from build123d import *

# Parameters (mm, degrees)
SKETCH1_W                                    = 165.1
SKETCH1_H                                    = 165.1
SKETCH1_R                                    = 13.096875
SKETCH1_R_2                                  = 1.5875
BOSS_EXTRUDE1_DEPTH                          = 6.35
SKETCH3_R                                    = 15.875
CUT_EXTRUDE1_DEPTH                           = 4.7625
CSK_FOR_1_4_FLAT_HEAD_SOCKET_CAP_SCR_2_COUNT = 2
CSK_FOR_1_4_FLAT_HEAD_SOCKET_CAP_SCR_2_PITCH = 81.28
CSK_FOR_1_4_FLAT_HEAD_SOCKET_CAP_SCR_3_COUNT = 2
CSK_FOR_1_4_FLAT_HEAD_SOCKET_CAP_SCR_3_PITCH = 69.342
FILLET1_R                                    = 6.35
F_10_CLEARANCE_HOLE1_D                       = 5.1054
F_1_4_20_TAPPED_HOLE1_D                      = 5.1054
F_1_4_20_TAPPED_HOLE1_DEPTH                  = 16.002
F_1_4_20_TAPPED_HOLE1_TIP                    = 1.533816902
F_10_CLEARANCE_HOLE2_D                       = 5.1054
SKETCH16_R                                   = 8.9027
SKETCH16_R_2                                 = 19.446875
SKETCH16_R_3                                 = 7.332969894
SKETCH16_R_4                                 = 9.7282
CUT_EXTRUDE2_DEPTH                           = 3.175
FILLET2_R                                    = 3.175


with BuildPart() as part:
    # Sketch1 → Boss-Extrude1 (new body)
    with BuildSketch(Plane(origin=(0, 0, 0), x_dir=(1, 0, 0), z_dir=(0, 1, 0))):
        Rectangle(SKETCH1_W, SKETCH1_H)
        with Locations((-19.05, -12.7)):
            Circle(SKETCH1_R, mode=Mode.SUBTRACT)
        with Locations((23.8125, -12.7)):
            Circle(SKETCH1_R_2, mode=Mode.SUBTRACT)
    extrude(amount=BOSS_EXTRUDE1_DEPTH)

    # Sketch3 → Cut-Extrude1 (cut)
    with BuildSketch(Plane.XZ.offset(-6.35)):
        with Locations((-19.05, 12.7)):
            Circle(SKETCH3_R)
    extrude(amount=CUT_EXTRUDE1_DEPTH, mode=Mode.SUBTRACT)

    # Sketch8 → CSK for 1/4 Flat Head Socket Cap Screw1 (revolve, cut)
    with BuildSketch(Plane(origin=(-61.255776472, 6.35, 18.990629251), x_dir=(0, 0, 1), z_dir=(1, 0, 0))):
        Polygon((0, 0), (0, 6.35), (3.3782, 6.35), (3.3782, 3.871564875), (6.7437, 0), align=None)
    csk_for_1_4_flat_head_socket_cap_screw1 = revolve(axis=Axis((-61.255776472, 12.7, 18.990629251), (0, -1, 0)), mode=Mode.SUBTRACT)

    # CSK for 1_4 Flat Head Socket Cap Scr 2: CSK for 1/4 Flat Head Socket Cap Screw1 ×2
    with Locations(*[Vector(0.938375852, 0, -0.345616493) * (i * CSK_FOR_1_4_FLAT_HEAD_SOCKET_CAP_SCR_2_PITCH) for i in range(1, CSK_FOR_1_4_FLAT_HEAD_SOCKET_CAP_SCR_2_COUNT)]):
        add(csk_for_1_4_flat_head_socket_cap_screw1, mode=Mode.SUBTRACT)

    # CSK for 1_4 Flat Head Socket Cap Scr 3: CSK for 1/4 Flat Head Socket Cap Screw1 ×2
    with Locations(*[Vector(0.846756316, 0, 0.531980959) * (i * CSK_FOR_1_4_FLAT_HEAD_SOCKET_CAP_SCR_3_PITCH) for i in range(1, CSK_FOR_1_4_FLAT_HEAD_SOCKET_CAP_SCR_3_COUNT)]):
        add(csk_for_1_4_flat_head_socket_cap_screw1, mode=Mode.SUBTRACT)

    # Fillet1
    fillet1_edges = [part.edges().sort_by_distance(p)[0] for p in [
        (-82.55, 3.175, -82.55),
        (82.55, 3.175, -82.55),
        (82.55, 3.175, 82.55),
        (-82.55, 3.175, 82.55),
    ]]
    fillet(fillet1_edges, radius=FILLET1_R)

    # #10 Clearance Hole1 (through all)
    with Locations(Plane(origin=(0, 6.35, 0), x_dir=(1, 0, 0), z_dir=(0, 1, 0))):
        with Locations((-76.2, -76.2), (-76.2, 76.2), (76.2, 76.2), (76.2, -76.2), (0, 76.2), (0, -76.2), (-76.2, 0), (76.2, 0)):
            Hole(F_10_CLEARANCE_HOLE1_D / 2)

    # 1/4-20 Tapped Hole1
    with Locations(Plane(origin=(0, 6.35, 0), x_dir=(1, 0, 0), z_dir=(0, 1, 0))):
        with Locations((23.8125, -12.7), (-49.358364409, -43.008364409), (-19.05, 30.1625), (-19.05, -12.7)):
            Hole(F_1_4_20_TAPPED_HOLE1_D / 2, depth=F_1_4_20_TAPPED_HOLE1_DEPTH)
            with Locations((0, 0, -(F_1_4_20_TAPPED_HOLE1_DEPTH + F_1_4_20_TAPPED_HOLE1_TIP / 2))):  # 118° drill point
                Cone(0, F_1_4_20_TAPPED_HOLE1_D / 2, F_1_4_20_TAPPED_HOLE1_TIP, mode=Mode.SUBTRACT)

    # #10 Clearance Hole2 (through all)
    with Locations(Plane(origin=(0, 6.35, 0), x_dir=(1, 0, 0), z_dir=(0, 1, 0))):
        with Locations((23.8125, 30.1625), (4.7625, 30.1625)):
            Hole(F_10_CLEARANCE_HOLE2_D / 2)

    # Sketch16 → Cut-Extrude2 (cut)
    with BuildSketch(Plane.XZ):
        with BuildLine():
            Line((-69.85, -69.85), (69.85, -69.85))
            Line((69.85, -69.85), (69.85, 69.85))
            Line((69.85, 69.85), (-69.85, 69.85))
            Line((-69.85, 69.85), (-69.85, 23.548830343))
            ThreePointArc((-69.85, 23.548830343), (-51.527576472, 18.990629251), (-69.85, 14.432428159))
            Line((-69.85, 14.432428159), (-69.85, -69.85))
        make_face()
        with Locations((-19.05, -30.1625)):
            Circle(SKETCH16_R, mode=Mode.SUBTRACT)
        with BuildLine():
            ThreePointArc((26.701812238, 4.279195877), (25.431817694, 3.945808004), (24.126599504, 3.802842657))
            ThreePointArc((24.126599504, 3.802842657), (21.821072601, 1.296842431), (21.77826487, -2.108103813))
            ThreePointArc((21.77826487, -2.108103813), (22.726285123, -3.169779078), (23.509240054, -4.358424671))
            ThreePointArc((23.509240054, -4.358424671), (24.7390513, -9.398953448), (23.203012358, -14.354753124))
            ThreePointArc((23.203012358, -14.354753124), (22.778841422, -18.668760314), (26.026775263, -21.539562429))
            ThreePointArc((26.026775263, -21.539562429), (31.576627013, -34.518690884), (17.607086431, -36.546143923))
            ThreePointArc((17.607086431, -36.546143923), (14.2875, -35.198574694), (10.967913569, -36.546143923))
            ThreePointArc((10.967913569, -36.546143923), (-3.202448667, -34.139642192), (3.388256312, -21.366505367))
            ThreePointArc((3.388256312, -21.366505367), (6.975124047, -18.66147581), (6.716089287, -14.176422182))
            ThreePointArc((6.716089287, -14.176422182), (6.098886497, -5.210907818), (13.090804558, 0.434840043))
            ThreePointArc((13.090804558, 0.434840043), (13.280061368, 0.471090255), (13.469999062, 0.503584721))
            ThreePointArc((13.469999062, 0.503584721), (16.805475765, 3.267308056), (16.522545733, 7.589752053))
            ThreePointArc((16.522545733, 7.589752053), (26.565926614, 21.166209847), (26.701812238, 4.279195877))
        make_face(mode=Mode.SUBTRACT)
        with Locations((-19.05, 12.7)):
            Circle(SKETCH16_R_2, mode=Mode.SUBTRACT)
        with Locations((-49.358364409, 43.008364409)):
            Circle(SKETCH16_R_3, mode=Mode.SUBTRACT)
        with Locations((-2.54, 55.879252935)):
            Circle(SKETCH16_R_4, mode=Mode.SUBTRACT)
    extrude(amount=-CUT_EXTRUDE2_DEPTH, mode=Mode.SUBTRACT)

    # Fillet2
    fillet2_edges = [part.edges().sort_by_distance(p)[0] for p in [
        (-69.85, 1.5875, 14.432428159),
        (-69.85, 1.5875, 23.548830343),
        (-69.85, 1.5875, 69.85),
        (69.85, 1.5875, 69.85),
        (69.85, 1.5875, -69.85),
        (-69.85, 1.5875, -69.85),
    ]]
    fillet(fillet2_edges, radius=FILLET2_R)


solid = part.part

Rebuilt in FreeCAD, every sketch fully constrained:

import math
import FreeCAD as App
import Part
import Sketcher

V = App.Vector
Q = App.Units.Quantity


def edges_at(feature, points):
    """Names of the edges that pass closest to the given points."""
    edges = feature.Shape.Edges
    near = lambda p: min(range(len(edges)), key=lambda i: edges[i].distToShape(Part.Vertex(*p))[0])
    return sorted({f"Edge{near(p) + 1}" for p in points})

doc = App.newDocument("Part")
body = doc.addObject("PartDesign::Body", "Body")

sketch1 = body.newObject("Sketcher::SketchObject", "Sketch")
sketch1.AttachmentSupport = (doc.getObject("XZ_Plane"), [""])
sketch1.MapMode = "FlatFace"
sketch1.addGeometry(Part.LineSegment(V(-82.5, -82.5, 0), V(-82.5, 82.5, 0)), False)
sketch1.addGeometry(Part.LineSegment(V(-82.5, 82.5, 0), V(82.5, 82.5, 0)), False)
sketch1.addGeometry(Part.LineSegment(V(82.5, 82.5, 0), V(82.5, -82.5, 0)), False)
sketch1.addGeometry(Part.LineSegment(V(82.5, -82.5, 0), V(-82.5, -82.5, 0)), False)
sketch1.addGeometry(Part.Circle(V(-19.1, 12.7, 0), V(0, 0, 1), 13.1), False)
sketch1.addGeometry(Part.Circle(V(23.8, 12.7, 0), V(0, 0, 1), 1.6), False)
sketch1.addConstraint(Sketcher.Constraint("Coincident", 0, 2, 1, 1))
sketch1.addConstraint(Sketcher.Constraint("Coincident", 1, 2, 2, 1))
sketch1.addConstraint(Sketcher.Constraint("Coincident", 2, 2, 3, 1))
sketch1.addConstraint(Sketcher.Constraint("Coincident", 3, 2, 0, 1))
sketch1.addConstraint(Sketcher.Constraint("Vertical", 0))
sketch1.addConstraint(Sketcher.Constraint("Horizontal", 1))
sketch1.addConstraint(Sketcher.Constraint("Vertical", 2))
sketch1.addConstraint(Sketcher.Constraint("Horizontal", 3))
sketch1.addConstraint(Sketcher.Constraint("Symmetric", 0, 2, 2, 2, -1, 1))
sketch1.addConstraint(Sketcher.Constraint("Horizontal", 4, 3, 5, 3))
sketch1.addConstraint(Sketcher.Constraint("Equal", 3, 0))
sketch1.addConstraint(Sketcher.Constraint("Diameter", 4, Q("1.03125 in")))
sketch1.addConstraint(Sketcher.Constraint("Diameter", 5, Q("0.125 in")))
sketch1.addConstraint(Sketcher.Constraint("DistanceX", 1, 1, 1, 2, Q("6.5 in")))
sketch1.addConstraint(Sketcher.Constraint("DistanceX", 4, 3, 1, 2, Q("4 in")))
sketch1.addConstraint(Sketcher.Constraint("DistanceY", -1, 1, 4, 3, Q("0.5 in")))
sketch1.addConstraint(Sketcher.Constraint("DistanceX", -1, 1, 5, 3, Q("0.9375 in")))
pad1 = body.newObject("PartDesign::Pad", "Pad")
pad1.Profile = sketch1
pad1.Length = Q("0.25 in")
pad1.Reversed = True

sketch2 = body.newObject("Sketcher::SketchObject", "Sketch001")
sketch2.AttachmentSupport = (doc.getObject("XZ_Plane"), [""])
sketch2.MapMode = "FlatFace"
sketch2.AttachmentOffset = App.Placement(V(0, 0, -0.25 * 25.4), App.Rotation())
sketch2.addGeometry(Part.Circle(V(-19, 13, 0), V(0, 0, 1), 16), False)
sketch2.addConstraint(Sketcher.Constraint("Diameter", 0, Q("1.25 in")))
sketch2.addConstraint(Sketcher.Constraint("DistanceY", -1, 1, 0, 3, Q("0.5 in")))
sketch2.addConstraint(Sketcher.Constraint("DistanceX", 0, 3, -1, 1, Q("0.75 in")))
pocket1 = body.newObject("PartDesign::Pocket", "Pocket")
pocket1.Profile = sketch2
pocket1.Length = Q("0.1875 in")
pocket1.Reversed = True

sketch3 = body.newObject("Sketcher::SketchObject", "Sketch002")
sketch3.AttachmentSupport = (doc.getObject("YZ_Plane"), [""])
sketch3.MapMode = "FlatFace"
sketch3.AttachmentOffset = App.Placement(V(0, 0, -61.255776), App.Rotation())
sketch3.addGeometry(Part.LineSegment(V(0, 19, 0), V(6.3, 19, 0)), False)
sketch3.addGeometry(Part.LineSegment(V(6.3, 19, 0), V(6.3, 25.7, 0)), False)
sketch3.addGeometry(Part.LineSegment(V(6.3, 25.7, 0), V(2.5, 22.4, 0)), False)
sketch3.addGeometry(Part.LineSegment(V(2.5, 22.4, 0), V(0, 22.4, 0)), False)
sketch3.addGeometry(Part.LineSegment(V(0, 22.4, 0), V(0, 19, 0)), False)
sketch3.addGeometry(Part.LineSegment(V(6.3, 19, 0), V(0, 19, 0)), True)
sketch3.addConstraint(Sketcher.Constraint("Coincident", 0, 2, 1, 1))
sketch3.addConstraint(Sketcher.Constraint("Coincident", 1, 2, 2, 1))
sketch3.addConstraint(Sketcher.Constraint("Coincident", 2, 2, 3, 1))
sketch3.addConstraint(Sketcher.Constraint("Coincident", 3, 2, 4, 1))
sketch3.addConstraint(Sketcher.Constraint("Coincident", 4, 2, 0, 1))
sketch3.addConstraint(Sketcher.Constraint("Horizontal", 0))
sketch3.addConstraint(Sketcher.Constraint("Vertical", 1))
sketch3.addConstraint(Sketcher.Constraint("Horizontal", 3))
sketch3.addConstraint(Sketcher.Constraint("Vertical", 4))
sketch3.addConstraint(Sketcher.Constraint("Horizontal", 5))
sketch3.addConstraint(Sketcher.Constraint("Coincident", 5, 1, 0, 2))
sketch3.addConstraint(Sketcher.Constraint("PointOnObject", 3, 2, -2))
sketch3.addConstraint(Sketcher.Constraint("PointOnObject", 5, 2, -2))
sketch3.addConstraint(Sketcher.Constraint("Angle", 2, Q("-139 deg")))
sketch3.addConstraint(Sketcher.Constraint("DistanceX", 0, 1, 0, 2, Q("0.25 in")))
sketch3.addConstraint(Sketcher.Constraint("DistanceY", 4, 2, 4, 1, Q("0.133 in")))
sketch3.addConstraint(Sketcher.Constraint("DistanceY", 1, 1, 1, 2, Q("0.2655 in")))
sketch3.addConstraint(Sketcher.Constraint("DistanceY", -1, 1, 0, 2, 18.990629))
groove = body.newObject("PartDesign::Groove", "Groove")
groove.Profile = sketch3
groove.ReferenceAxis = (sketch3, ["Axis0"])
groove.Angle = 360
doc.recompute()

datumline = body.newObject("PartDesign::Line", "DatumLine")
datumline.Placement = App.Placement(V(0, 0, 0), App.Rotation(V(0, 0, 1), V(0.938375852, 0, -0.345616493)))
linearpattern = body.newObject("PartDesign::LinearPattern", "LinearPattern")
linearpattern.Originals = [groove]
linearpattern.Direction = (datumline, [""])
linearpattern.Mode = "offset"
linearpattern.Offset = Q("3.2 in")
linearpattern.Occurrences = 2
body.Tip = linearpattern
doc.recompute()

datumline2 = body.newObject("PartDesign::Line", "DatumLine001")
datumline2.Placement = App.Placement(V(0, 0, 0), App.Rotation(V(0, 0, 1), V(0.846756316, 0, 0.531980959)))
linearpattern2 = body.newObject("PartDesign::LinearPattern", "LinearPattern001")
linearpattern2.Originals = [groove]
linearpattern2.Direction = (datumline2, [""])
linearpattern2.Mode = "offset"
linearpattern2.Offset = Q("2.73 in")
linearpattern2.Occurrences = 2
body.Tip = linearpattern2
doc.recompute()

fillet = body.newObject("PartDesign::Fillet", "Fillet")
fillet.Base = (linearpattern2, edges_at(linearpattern2, [
    (-82.55, 3.175, -82.55),
    (82.55, 3.175, -82.55),
    (82.55, 3.175, 82.55),
    (-82.55, 3.175, 82.55),
]))
fillet.Radius = Q("0.25 in")

sketch4 = body.newObject("Sketcher::SketchObject", "Sketch003")
sketch4.AttachmentSupport = (doc.getObject("XZ_Plane"), [""])
sketch4.MapMode = "FlatFace"
sketch4.AttachmentOffset = App.Placement(V(0, 0, -0.25 * 25.4), App.Rotation())
sketch4.addGeometry(Part.Circle(V(-76.2, 76.2, 0), V(0, 0, 1), 2.6), False)
sketch4.addGeometry(Part.Circle(V(-76.2, -76.2, 0), V(0, 0, 1), 2.6), False)
sketch4.addGeometry(Part.Circle(V(76.2, -76.2, 0), V(0, 0, 1), 2.6), False)
sketch4.addGeometry(Part.Circle(V(76.2, 76.2, 0), V(0, 0, 1), 2.6), False)
sketch4.addGeometry(Part.Circle(V(0, -76.2, 0), V(0, 0, 1), 2.6), False)
sketch4.addGeometry(Part.Circle(V(0, 76.2, 0), V(0, 0, 1), 2.6), False)
sketch4.addGeometry(Part.Circle(V(-76.2, 0, 0), V(0, 0, 1), 2.6), False)
sketch4.addGeometry(Part.Circle(V(76.2, 0, 0), V(0, 0, 1), 2.6), False)
sketch4.addConstraint(Sketcher.Constraint("Equal", 0, 1))
sketch4.addConstraint(Sketcher.Constraint("Equal", 1, 2))
sketch4.addConstraint(Sketcher.Constraint("Equal", 2, 3))
sketch4.addConstraint(Sketcher.Constraint("Equal", 3, 4))
sketch4.addConstraint(Sketcher.Constraint("Equal", 4, 5))
sketch4.addConstraint(Sketcher.Constraint("Equal", 5, 6))
sketch4.addConstraint(Sketcher.Constraint("Equal", 6, 7))
sketch4.addConstraint(Sketcher.Constraint("Symmetric", 0, 3, 2, 3, -1, 1))
sketch4.addConstraint(Sketcher.Constraint("Symmetric", 1, 3, 3, 3, -1, 1))
sketch4.addConstraint(Sketcher.Constraint("Symmetric", 4, 3, 5, 3, -1, 1))
sketch4.addConstraint(Sketcher.Constraint("Symmetric", 6, 3, 7, 3, -1, 1))
sketch4.addConstraint(Sketcher.Constraint("Symmetric", 1, 3, 2, 3, -2))
sketch4.addConstraint(Sketcher.Constraint("PointOnObject", 4, 3, -2))
sketch4.addConstraint(Sketcher.Constraint("PointOnObject", 6, 3, -1))
sketch4.addConstraint(Sketcher.Constraint("Horizontal", 2, 3, 4, 3))
sketch4.addConstraint(Sketcher.Constraint("Vertical", 1, 3, 6, 3))
sketch4.addConstraint(Sketcher.Constraint("Diameter", 0, Q("0.201 in")))
sketch4.addConstraint(Sketcher.Constraint("DistanceX", 0, 3, -1, 1, Q("3 in")))
sketch4.addConstraint(Sketcher.Constraint("DistanceY", -1, 1, 0, 3, Q("3 in")))
doc.recompute()
hole = body.newObject("PartDesign::Hole", "Hole")
hole.Profile = sketch4
hole.ThreadType = "None"
hole.Diameter = Q("0.201 in")
hole.DepthType = "ThroughAll"
hole.Reversed = True

sketch5 = body.newObject("Sketcher::SketchObject", "Sketch004")
sketch5.AttachmentSupport = (doc.getObject("XZ_Plane"), [""])
sketch5.MapMode = "FlatFace"
sketch5.AttachmentOffset = App.Placement(V(0, 0, -0.25 * 25.4), App.Rotation())
sketch5.addGeometry(Part.Circle(V(23.8, 12.7, 0), V(0, 0, 1), 2.6), False)
sketch5.addGeometry(Part.Circle(V(-49.4, 43, 0), V(0, 0, 1), 2.6), False)
sketch5.addGeometry(Part.Circle(V(-19.1, -30.2, 0), V(0, 0, 1), 2.6), False)
sketch5.addGeometry(Part.Circle(V(-19.1, 12.7, 0), V(0, 0, 1), 2.6), False)
sketch5.addConstraint(Sketcher.Constraint("Equal", 0, 1))
sketch5.addConstraint(Sketcher.Constraint("Equal", 1, 2))
sketch5.addConstraint(Sketcher.Constraint("Equal", 2, 3))
sketch5.addConstraint(Sketcher.Constraint("Horizontal", 0, 3, 3, 3))
sketch5.addConstraint(Sketcher.Constraint("Vertical", 2, 3, 3, 3))
sketch5.addConstraint(Sketcher.Constraint("Diameter", 0, Q("0.201 in")))
sketch5.addConstraint(Sketcher.Constraint("DistanceY", -1, 1, 0, 3, Q("0.5 in")))
sketch5.addConstraint(Sketcher.Constraint("DistanceX", 2, 3, -1, 1, Q("0.75 in")))
sketch5.addConstraint(Sketcher.Constraint("DistanceX", -1, 1, 0, 3, Q("0.9375 in")))
sketch5.addConstraint(Sketcher.Constraint("DistanceY", 2, 3, -1, 1, Q("1.1875 in")))
sketch5.addConstraint(Sketcher.Constraint("DistanceX", 1, 3, -1, 1, 49.358364))
sketch5.addConstraint(Sketcher.Constraint("DistanceY", -1, 1, 1, 3, 43.008364))
doc.recompute()
hole2 = body.newObject("PartDesign::Hole", "Hole001")
hole2.Profile = sketch5
hole2.ThreadType = "None"
hole2.Diameter = Q("0.201 in")
hole2.DepthType = "Dimension"
hole2.Depth = Q("0.63 in")
hole2.DrillPoint = "Angled"
hole2.DrillPointAngle = 118
hole2.Reversed = True

sketch6 = body.newObject("Sketcher::SketchObject", "Sketch005")
sketch6.AttachmentSupport = (doc.getObject("XZ_Plane"), [""])
sketch6.MapMode = "FlatFace"
sketch6.AttachmentOffset = App.Placement(V(0, 0, -0.25 * 25.4), App.Rotation())
sketch6.addGeometry(Part.Circle(V(23.8, -30.2, 0), V(0, 0, 1), 2.6), False)
sketch6.addGeometry(Part.Circle(V(4.8, -30.2, 0), V(0, 0, 1), 2.6), False)
sketch6.addConstraint(Sketcher.Constraint("Equal", 0, 1))
sketch6.addConstraint(Sketcher.Constraint("Horizontal", 0, 3, 1, 3))
sketch6.addConstraint(Sketcher.Constraint("Diameter", 0, Q("0.201 in")))
sketch6.addConstraint(Sketcher.Constraint("DistanceX", 1, 3, 0, 3, Q("0.75 in")))
sketch6.addConstraint(Sketcher.Constraint("DistanceX", -1, 1, 0, 3, Q("0.9375 in")))
sketch6.addConstraint(Sketcher.Constraint("DistanceY", 0, 3, -1, 1, Q("1.1875 in")))
doc.recompute()
hole3 = body.newObject("PartDesign::Hole", "Hole002")
hole3.Profile = sketch6
hole3.ThreadType = "None"
hole3.Diameter = Q("0.201 in")
hole3.DepthType = "ThroughAll"
hole3.Reversed = True

sketch7 = body.newObject("Sketcher::SketchObject", "Sketch006")
sketch7.AttachmentSupport = (doc.getObject("XZ_Plane"), [""])
sketch7.MapMode = "FlatFace"
sketch7.addGeometry(Part.LineSegment(V(-69.85, -69.85, 0), V(69.85, -69.85, 0)), False)
sketch7.addGeometry(Part.LineSegment(V(69.85, -69.85, 0), V(69.85, 69.85, 0)), False)
sketch7.addGeometry(Part.LineSegment(V(69.85, 69.85, 0), V(-69.85, 69.85, 0)), False)
sketch7.addGeometry(Part.LineSegment(V(-69.85, 69.85, 0), V(-69.85, 23.55, 0)), False)
sketch7.addGeometry(Part.ArcOfCircle(Part.Circle(V(-61.26, 18.99, 0), V(0, 0, 1), 9.73), math.radians(-152), math.radians(152)), False)
sketch7.addGeometry(Part.LineSegment(V(-69.85, 14.43, 0), V(-69.85, -69.85, 0)), False)
sketch7.addGeometry(Part.Circle(V(-19.05, -30.16, 0), V(0, 0, 1), 8.9), False)
sketch7.addGeometry(Part.Circle(V(-19.05, 12.7, 0), V(0, 0, 1), 19.45), False)
sketch7.addGeometry(Part.ArcOfCircle(Part.Circle(V(23.81, 12.7, 0), V(0, 0, 1), 8.9), math.radians(-71), math.radians(215)), False)
sketch7.addGeometry(Part.ArcOfCircle(Part.Circle(V(23.81, 12.7, 0), V(0, 0, 1), 8.9), math.radians(-87.98), math.radians(-71.06)), False)
sketch7.addGeometry(Part.ArcOfCircle(Part.Circle(V(26.25, -0.46, 0), V(0, 0, 1), 4.76), math.radians(116), math.radians(200)), False)
sketch7.addGeometry(Part.ArcOfCircle(Part.Circle(V(15.02, -9.1, 0), V(0, 0, 1), 9.73), math.radians(29.18), math.radians(45.96)), False)
sketch7.addGeometry(Part.ArcOfCircle(Part.Circle(V(15.02, -9.1, 0), V(0, 0, 1), 9.73), math.radians(-33), math.radians(29)), False)
sketch7.addGeometry(Part.ArcOfCircle(Part.Circle(V(27.21, -16.93, 0), V(0, 0, 1), 4.76), math.radians(147), math.radians(256)), False)
sketch7.addGeometry(Part.ArcOfCircle(Part.Circle(V(23.81, -30.16, 0), V(0, 0, 1), 8.9), math.radians(-134), math.radians(76)), False)
sketch7.addGeometry(Part.ArcOfCircle(Part.Circle(V(14.29, -39.96, 0), V(0, 0, 1), 4.76), math.radians(46), math.radians(134)), False)
sketch7.addGeometry(Part.ArcOfCircle(Part.Circle(V(4.76, -30.16, 0), V(0, 0, 1), 8.9), math.radians(99), math.radians(314)), False)
sketch7.addGeometry(Part.ArcOfCircle(Part.Circle(V(2.65, -16.66, 0), V(0, 0, 1), 4.76), math.radians(-81), math.radians(31)), False)
sketch7.addGeometry(Part.ArcOfCircle(Part.Circle(V(15.02, -9.1, 0), V(0, 0, 1), 9.73), math.radians(101), math.radians(211)), False)
sketch7.addGeometry(Part.ArcOfCircle(Part.Circle(V(15.02, -9.1, 0), V(0, 0, 1), 9.73), math.radians(99.14), math.radians(101.41)), False)
sketch7.addGeometry(Part.ArcOfCircle(Part.Circle(V(12.43, 5.15, 0), V(0, 0, 1), 4.76), math.radians(-77), math.radians(31)), False)
sketch7.addGeometry(Part.Circle(V(-49.36, 43.01, 0), V(0, 0, 1), 7.33), False)
sketch7.addGeometry(Part.Circle(V(-2.54, 55.88, 0), V(0, 0, 1), 9.73), False)
sketch7.addConstraint(Sketcher.Constraint("Coincident", 0, 2, 1, 1))
sketch7.addConstraint(Sketcher.Constraint("Coincident", 1, 2, 2, 1))
sketch7.addConstraint(Sketcher.Constraint("Coincident", 2, 2, 3, 1))
sketch7.addConstraint(Sketcher.Constraint("Coincident", 3, 2, 4, 2))
sketch7.addConstraint(Sketcher.Constraint("Coincident", 4, 1, 5, 1))
sketch7.addConstraint(Sketcher.Constraint("Coincident", 5, 2, 0, 1))
sketch7.addConstraint(Sketcher.Constraint("Tangent", 8, 1, 9, 2))
sketch7.addConstraint(Sketcher.Constraint("Coincident", 9, 1, 10, 1))
sketch7.addConstraint(Sketcher.Constraint("Coincident", 10, 2, 11, 2))
sketch7.addConstraint(Sketcher.Constraint("Tangent", 11, 1, 12, 2))
sketch7.addConstraint(Sketcher.Constraint("Tangent", 12, 1, 13, 1))
sketch7.addConstraint(Sketcher.Constraint("Tangent", 13, 2, 14, 2))
sketch7.addConstraint(Sketcher.Constraint("Tangent", 14, 1, 15, 1))
sketch7.addConstraint(Sketcher.Constraint("Tangent", 15, 2, 16, 2))
sketch7.addConstraint(Sketcher.Constraint("Tangent", 16, 1, 17, 1))
sketch7.addConstraint(Sketcher.Constraint("Tangent", 17, 2, 18, 2))
sketch7.addConstraint(Sketcher.Constraint("Tangent", 18, 1, 19, 2))
sketch7.addConstraint(Sketcher.Constraint("Coincident", 19, 1, 20, 1))
sketch7.addConstraint(Sketcher.Constraint("Coincident", 20, 2, 8, 2))
sketch7.addConstraint(Sketcher.Constraint("Horizontal", 0))
sketch7.addConstraint(Sketcher.Constraint("Vertical", 1))
sketch7.addConstraint(Sketcher.Constraint("Horizontal", 2))
sketch7.addConstraint(Sketcher.Constraint("Vertical", 3))
sketch7.addConstraint(Sketcher.Constraint("Vertical", 5))
sketch7.addConstraint(Sketcher.Constraint("Coincident", 18, 3, 11, 3))
sketch7.addConstraint(Sketcher.Constraint("Equal", 6, 8))
sketch7.addConstraint(Sketcher.Constraint("Equal", 8, 9))
sketch7.addConstraint(Sketcher.Constraint("Equal", 4, 11))
sketch7.addConstraint(Sketcher.Constraint("Equal", 11, 12))
sketch7.addConstraint(Sketcher.Constraint("Equal", 10, 13))
sketch7.addConstraint(Sketcher.Constraint("Equal", 9, 14))
sketch7.addConstraint(Sketcher.Constraint("Equal", 13, 15))
sketch7.addConstraint(Sketcher.Constraint("Equal", 14, 16))
sketch7.addConstraint(Sketcher.Constraint("Equal", 15, 17))
sketch7.addConstraint(Sketcher.Constraint("Equal", 12, 18))
sketch7.addConstraint(Sketcher.Constraint("Equal", 18, 19))
sketch7.addConstraint(Sketcher.Constraint("Equal", 17, 20))
sketch7.addConstraint(Sketcher.Constraint("Equal", 19, 22))
sketch7.addConstraint(Sketcher.Constraint("Symmetric", 0, 2, 2, 2, -1, 1))
sketch7.addConstraint(Sketcher.Constraint("Horizontal", 7, 3, 8, 3))
sketch7.addConstraint(Sketcher.Constraint("Horizontal", 6, 3, 14, 3))
sketch7.addConstraint(Sketcher.Constraint("Horizontal", 14, 3, 16, 3))
sketch7.addConstraint(Sketcher.Constraint("Vertical", 6, 3, 7, 3))
sketch7.addConstraint(Sketcher.Constraint("Vertical", 9, 3, 14, 3))
sketch7.addConstraint(Sketcher.Constraint("Vertical", 3, 2, 4, 1))
sketch7.addConstraint(Sketcher.Constraint("Equal", 2, 1))
sketch7.addConstraint(Sketcher.Constraint("Diameter", 6, Q("0.701 in")))
sketch7.addConstraint(Sketcher.Constraint("Diameter", 7, Q("1.53125 in")))
sketch7.addConstraint(Sketcher.Constraint("Diameter", 22, Q("0.766 in")))
sketch7.addConstraint(Sketcher.Constraint("DistanceX", 0, 1, 0, 2, Q("5.5 in")))
sketch7.addConstraint(Sketcher.Constraint("Radius", 10, Q("0.1875 in")))
sketch7.addConstraint(Sketcher.Constraint("DistanceX", 2, 2, 7, 3, Q("2 in")))
sketch7.addConstraint(Sketcher.Constraint("DistanceY", -1, 1, 7, 3, Q("0.5 in")))
sketch7.addConstraint(Sketcher.Constraint("DistanceX", 22, 3, -1, 1, Q("0.1 in")))
sketch7.addConstraint(Sketcher.Constraint("DistanceX", 16, 3, 14, 3, Q("0.75 in")))
sketch7.addConstraint(Sketcher.Constraint("Diameter", 21, 14.66594))
sketch7.addConstraint(Sketcher.Constraint("DistanceY", 6, 3, -1, 1, Q("1.1875 in")))
sketch7.addConstraint(Sketcher.Constraint("DistanceX", -1, 1, 8, 3, Q("0.9375 in")))
sketch7.addConstraint(Sketcher.Constraint("DistanceY", 3, 2, 3, 1, 46.30117))
sketch7.addConstraint(Sketcher.Constraint("DistanceY", 5, 2, 5, 1, 84.282428))
sketch7.addConstraint(Sketcher.Constraint("DistanceX", -1, 1, 13, 3, 27.211302))
sketch7.addConstraint(Sketcher.Constraint("DistanceX", -1, 1, 9, 1, 24.1266))
sketch7.addConstraint(Sketcher.Constraint("DistanceX", -1, 1, 19, 1, 13.469999))
sketch7.addConstraint(Sketcher.Constraint("DistanceX", 12, 3, 8, 1, 11.686399))
sketch7.addConstraint(Sketcher.Constraint("DistanceY", 10, 2, 8, 1, 6.3873))
sketch7.addConstraint(Sketcher.Constraint("DistanceX", 19, 3, 12, 1, 8.187599))
sketch7.addConstraint(Sketcher.Constraint("DistanceX", 20, 3, 20, 2, 4.091))
sketch7.addConstraint(Sketcher.Constraint("DistanceX", -1, 1, 11, 1, 23.50924))
sketch7.addConstraint(Sketcher.Constraint("DistanceY", -1, 1, 18, 1, 0.43484))
sketch7.addConstraint(Sketcher.Constraint("DistanceX", 21, 3, 20, 3, 61.78991))
sketch7.addConstraint(Sketcher.Constraint("DistanceY", 17, 3, 21, 3, 59.669452))
sketch7.addConstraint(Sketcher.Constraint("DistanceY", 21, 3, 22, 3, 12.870889))
pocket2 = body.newObject("PartDesign::Pocket", "Pocket001")
pocket2.Profile = sketch7
pocket2.Length = Q("0.125 in")
doc.recompute()

fillet2 = body.newObject("PartDesign::Fillet", "Fillet001")
fillet2.Base = (pocket2, edges_at(pocket2, [
    (-69.85, 1.587, 14.432),
    (-69.85, 1.587, 23.549),
    (-69.85, 1.587, 69.85),
    (69.85, 1.587, 69.85),
    (69.85, 1.587, -69.85),
    (-69.85, 1.587, -69.85),
]))
fillet2.Radius = Q("0.125 in")

doc.recompute()
